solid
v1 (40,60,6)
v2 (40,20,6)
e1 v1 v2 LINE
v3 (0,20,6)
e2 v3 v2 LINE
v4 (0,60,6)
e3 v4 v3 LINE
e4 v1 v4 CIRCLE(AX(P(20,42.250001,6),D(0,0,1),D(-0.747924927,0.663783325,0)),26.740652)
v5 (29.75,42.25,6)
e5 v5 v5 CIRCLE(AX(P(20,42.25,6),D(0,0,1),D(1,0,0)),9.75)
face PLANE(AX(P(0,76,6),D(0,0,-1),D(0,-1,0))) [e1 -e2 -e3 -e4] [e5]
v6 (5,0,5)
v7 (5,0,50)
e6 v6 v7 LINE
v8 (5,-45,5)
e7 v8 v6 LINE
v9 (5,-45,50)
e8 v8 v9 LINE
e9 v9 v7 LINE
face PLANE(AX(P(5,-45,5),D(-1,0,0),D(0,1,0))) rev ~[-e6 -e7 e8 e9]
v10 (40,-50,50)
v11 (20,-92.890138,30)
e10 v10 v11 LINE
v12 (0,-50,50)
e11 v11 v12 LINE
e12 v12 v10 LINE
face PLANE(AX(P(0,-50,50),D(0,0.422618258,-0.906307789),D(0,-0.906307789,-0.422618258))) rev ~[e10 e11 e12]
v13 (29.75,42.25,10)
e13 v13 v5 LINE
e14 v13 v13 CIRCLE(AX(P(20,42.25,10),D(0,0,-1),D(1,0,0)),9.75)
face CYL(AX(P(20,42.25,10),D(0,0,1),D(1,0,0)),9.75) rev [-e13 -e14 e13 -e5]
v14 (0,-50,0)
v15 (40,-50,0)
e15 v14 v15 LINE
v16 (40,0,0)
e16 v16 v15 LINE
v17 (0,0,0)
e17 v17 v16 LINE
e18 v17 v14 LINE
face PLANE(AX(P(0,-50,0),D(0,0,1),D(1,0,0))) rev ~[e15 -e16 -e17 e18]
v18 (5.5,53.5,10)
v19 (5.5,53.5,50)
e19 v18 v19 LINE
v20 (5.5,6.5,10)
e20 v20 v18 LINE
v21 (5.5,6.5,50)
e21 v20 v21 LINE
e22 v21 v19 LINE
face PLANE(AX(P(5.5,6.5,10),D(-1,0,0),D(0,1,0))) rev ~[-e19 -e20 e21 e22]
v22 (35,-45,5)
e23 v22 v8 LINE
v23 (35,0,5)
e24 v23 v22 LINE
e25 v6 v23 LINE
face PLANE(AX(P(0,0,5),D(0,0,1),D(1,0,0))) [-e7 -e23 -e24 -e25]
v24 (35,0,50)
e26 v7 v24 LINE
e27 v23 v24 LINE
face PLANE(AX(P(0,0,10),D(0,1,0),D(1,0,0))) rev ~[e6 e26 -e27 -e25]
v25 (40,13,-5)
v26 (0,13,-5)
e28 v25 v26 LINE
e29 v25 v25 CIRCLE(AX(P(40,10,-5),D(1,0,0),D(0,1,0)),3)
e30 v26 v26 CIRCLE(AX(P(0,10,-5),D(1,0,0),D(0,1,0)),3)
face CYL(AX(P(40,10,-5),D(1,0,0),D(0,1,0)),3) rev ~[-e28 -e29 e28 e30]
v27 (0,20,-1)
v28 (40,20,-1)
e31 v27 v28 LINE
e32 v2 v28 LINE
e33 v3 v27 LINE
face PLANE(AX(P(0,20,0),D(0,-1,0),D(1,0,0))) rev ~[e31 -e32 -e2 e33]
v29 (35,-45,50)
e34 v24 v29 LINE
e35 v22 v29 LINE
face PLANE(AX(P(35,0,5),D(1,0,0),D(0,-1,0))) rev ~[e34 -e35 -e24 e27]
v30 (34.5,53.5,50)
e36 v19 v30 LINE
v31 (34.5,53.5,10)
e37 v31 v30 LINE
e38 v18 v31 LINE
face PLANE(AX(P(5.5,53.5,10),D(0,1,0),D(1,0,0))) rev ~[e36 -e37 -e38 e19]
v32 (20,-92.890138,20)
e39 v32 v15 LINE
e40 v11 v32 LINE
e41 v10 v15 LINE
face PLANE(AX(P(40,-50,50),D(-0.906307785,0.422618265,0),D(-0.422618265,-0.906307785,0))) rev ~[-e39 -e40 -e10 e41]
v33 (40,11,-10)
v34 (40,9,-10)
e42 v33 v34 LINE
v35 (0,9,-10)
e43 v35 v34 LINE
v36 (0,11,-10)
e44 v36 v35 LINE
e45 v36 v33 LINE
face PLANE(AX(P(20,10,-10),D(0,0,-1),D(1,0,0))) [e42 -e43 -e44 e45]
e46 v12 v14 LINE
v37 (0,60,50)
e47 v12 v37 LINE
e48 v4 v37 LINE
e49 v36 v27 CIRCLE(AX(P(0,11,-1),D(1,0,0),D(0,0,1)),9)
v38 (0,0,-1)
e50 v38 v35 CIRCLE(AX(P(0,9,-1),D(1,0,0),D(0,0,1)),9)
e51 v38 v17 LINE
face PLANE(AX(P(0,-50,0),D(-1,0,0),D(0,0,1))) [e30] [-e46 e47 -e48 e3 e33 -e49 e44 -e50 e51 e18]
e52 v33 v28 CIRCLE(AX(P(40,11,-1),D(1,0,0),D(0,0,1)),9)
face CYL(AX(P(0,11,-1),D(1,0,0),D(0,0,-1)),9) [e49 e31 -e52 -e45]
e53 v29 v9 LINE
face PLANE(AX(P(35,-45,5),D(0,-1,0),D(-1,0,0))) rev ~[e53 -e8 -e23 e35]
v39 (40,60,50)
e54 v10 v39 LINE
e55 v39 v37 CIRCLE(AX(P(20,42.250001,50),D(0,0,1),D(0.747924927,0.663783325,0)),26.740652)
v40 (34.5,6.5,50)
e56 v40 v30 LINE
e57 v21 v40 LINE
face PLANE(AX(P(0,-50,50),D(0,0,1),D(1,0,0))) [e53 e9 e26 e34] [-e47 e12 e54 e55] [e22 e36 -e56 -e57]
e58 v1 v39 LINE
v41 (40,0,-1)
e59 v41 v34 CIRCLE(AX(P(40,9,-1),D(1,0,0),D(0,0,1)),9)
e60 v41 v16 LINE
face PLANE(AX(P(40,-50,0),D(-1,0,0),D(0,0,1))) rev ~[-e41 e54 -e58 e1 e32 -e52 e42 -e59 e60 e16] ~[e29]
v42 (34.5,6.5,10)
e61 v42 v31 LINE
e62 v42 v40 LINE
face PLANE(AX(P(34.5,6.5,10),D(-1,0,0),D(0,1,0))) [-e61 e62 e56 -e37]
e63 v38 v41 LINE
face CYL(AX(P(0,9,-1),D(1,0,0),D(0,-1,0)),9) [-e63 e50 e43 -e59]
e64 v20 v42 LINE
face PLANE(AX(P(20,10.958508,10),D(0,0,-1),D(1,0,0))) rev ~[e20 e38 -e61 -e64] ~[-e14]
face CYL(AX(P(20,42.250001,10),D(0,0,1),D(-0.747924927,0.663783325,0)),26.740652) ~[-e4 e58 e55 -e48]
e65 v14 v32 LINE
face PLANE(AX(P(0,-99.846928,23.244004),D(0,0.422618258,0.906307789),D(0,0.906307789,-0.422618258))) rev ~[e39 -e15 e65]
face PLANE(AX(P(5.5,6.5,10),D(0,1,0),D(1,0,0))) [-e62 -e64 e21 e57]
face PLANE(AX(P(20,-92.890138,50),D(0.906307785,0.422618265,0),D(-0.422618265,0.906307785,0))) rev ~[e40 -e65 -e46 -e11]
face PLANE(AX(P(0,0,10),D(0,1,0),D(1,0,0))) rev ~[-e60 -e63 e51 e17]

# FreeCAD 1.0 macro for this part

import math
import FreeCAD as App
import Part
import Sketcher
Q = App.Units.Quantity


def edges_at(feature, points):
    """Names of the edges that pass closest to the given points."""
    edges = feature.Shape.Edges
    near = lambda p: min(range(len(edges)), key=lambda i: edges[i].distToShape(Part.Vertex(*p))[0])
    return sorted({f"Edge{near(p) + 1}" for p in points})

doc = App.newDocument("Part")
params = doc.addObject("Spreadsheet::Sheet", "Params")
for row, (alias, value) in enumerate([
    ("sketch1_width", "40 mm"),
    ("sketch1_width2", "29 mm"),
    ("sketch1_height", "60 mm"),
    ("sketch1_height2", "47 mm"),
    ("pad1_length", "40 mm"),
    ("sketch2_radius", "20 mm"),
    ("sketch2_diameter", "19.5 mm"),
    ("sketch2_height", "90 mm"),
    ("pad2_length", "10 mm"),
    ("sketch3_width", "56 mm"),
    ("sketch3_height", "6 mm"),
    ("pocket1_length", "100 mm"),
    ("sketch4_radius", "20 mm"),
    ("sketch4_height", "30 mm"),
    ("pocket2_length", "5 mm"),
    ("sketch5_diameter", "1.6 mm"),
    ("pocket3_length", "5 mm"),
    ("sketch6_width", "40 mm"),
    ("sketch6_height", "20 mm"),
    ("pad3_length", "10 mm"),
    ("fillet_radius", "9 mm"),
    ("fillet2_radius", "9 mm"),
    ("sketch7_diameter", "6 mm"),
    ("pocket4_length", "50 mm"),
    ("sketch8_width", "45 mm"),
    ("sketch8_height", "54 mm"),
    ("pocket5_length", "5 mm"),
    ("sketch9_width", "40 mm"),
    ("sketch9_height", "5 mm"),
    ("pad4_length", "50 mm"),
    ("sketch10_width", "40 mm"),
    ("sketch10_width2", "5 mm"),
    ("sketch10_height", "50 mm"),
    ("sketch10_height2", "45 mm"),
    ("pad5_length", "45 mm"),
    ("sketch11_width", "40 mm"),
    ("sketch11_height", "50 mm"),
    ("pad6_length", "50 mm"),
    ("sketch12_width", "40 mm"),
    ("sketch12_height", "50 mm"),
    ("sketch13_width", "45 mm"),
    ("sketch13_height", "50 mm"),
    ("sketch13_length", "55 mm"),
], start=1):
    params.set(f"A{row}", alias)
    params.set(f"B{row}", "=" + value)
    params.setAlias(f"B{row}", alias)

body = doc.addObject("PartDesign::Body", "Body")

# Sketch on XY plane
sketch1 = doc.addObject("Sketcher::SketchObject", "Sketch")
body.addObject(sketch1)
sketch1.AttachmentSupport = (doc.XY_Plane, [""])
sketch1.MapMode = "FlatFace"
sketch1.AttachmentOffset = App.Placement(App.Vector(0, 0, 10), App.Rotation())
sketch1.addGeometry(Part.LineSegment(App.Vector(0, 0, 0), App.Vector(40, 0, 0)), False)
sketch1.addGeometry(Part.LineSegment(App.Vector(40, 0, 0), App.Vector(40, 60, 0)), False)
sketch1.addGeometry(Part.ArcOfCircle(Part.Circle(App.Vector(20, 42.250001, 0), App.Vector(0, 0, 1), 26.740652), math.radians(41.589053), math.radians(138.410947)), False)
sketch1.addGeometry(Part.LineSegment(App.Vector(0, 60, 0), App.Vector(0, 0, 0)), False)
sketch1.addGeometry(Part.LineSegment(App.Vector(34.5, 6.5, 0), App.Vector(5.5, 6.5, 0)), False)
sketch1.addGeometry(Part.LineSegment(App.Vector(5.5, 6.5, 0), App.Vector(5.5, 53.5, 0)), False)
sketch1.addGeometry(Part.LineSegment(App.Vector(5.5, 53.5, 0), App.Vector(34.5, 53.5, 0)), False)
sketch1.addGeometry(Part.LineSegment(App.Vector(34.5, 53.5, 0), App.Vector(34.5, 6.5, 0)), False)
sketch1.addConstraint(Sketcher.Constraint("Coincident", 0, 2, 1, 1))
sketch1.addConstraint(Sketcher.Constraint("Coincident", 1, 2, 2, 1))
sketch1.addConstraint(Sketcher.Constraint("Coincident", 2, 2, 3, 1))
sketch1.addConstraint(Sketcher.Constraint("Coincident", 3, 2, 0, 1))
sketch1.addConstraint(Sketcher.Constraint("Coincident", 4, 2, 5, 1))
sketch1.addConstraint(Sketcher.Constraint("Coincident", 5, 2, 6, 1))
sketch1.addConstraint(Sketcher.Constraint("Coincident", 6, 2, 7, 1))
sketch1.addConstraint(Sketcher.Constraint("Coincident", 7, 2, 4, 1))
sketch1.addConstraint(Sketcher.Constraint("Horizontal", 0))
sketch1.addConstraint(Sketcher.Constraint("Vertical", 1))
sketch1.addConstraint(Sketcher.Constraint("Vertical", 3))
sketch1.addConstraint(Sketcher.Constraint("Horizontal", 4))
sketch1.addConstraint(Sketcher.Constraint("Vertical", 5))
sketch1.addConstraint(Sketcher.Constraint("Horizontal", 6))
sketch1.addConstraint(Sketcher.Constraint("Vertical", 7))
sketch1.addConstraint(Sketcher.Constraint("Coincident", 3, 2, -1, 1))
sketch1.addConstraint(Sketcher.Constraint("Horizontal", 1, 2, 2, 2))
sketch1.addConstraint(Sketcher.Constraint("DistanceX", 0, 1, 0, 2, Q("40 mm")))
sketch1.addConstraint(Sketcher.Constraint("DistanceX", 4, 2, 4, 1, Q("29 mm")))
sketch1.addConstraint(Sketcher.Constraint("DistanceY", 1, 1, 1, 2, Q("60 mm")))
sketch1.addConstraint(Sketcher.Constraint("DistanceY", 5, 1, 5, 2, Q("47 mm")))
sketch1.addConstraint(Sketcher.Constraint("DistanceX", -1, 1, 4, 2, Q("5.5 mm")))
sketch1.addConstraint(Sketcher.Constraint("DistanceY", -1, 1, 4, 2, Q("6.5 mm")))
sketch1.addConstraint(Sketcher.Constraint("DistanceY", -1, 1, 2, 3, Q("42.250001 mm")))
sketch1.setExpression("Constraints[17]", "Params.sketch1_width")
sketch1.setExpression("Constraints[18]", "Params.sketch1_width2")
sketch1.setExpression("Constraints[19]", "Params.sketch1_height")
sketch1.setExpression("Constraints[20]", "Params.sketch1_height2")
pad1 = doc.addObject("PartDesign::Pad", "Pad")
body.addObject(pad1)
pad1.Profile = sketch1
pad1.setExpression("Length", "Params.pad1_length")

# Sketch on XY plane
sketch2 = doc.addObject("Sketcher::SketchObject", "Sketch001")
body.addObject(sketch2)
sketch2.AttachmentSupport = (doc.XY_Plane, [""])
sketch2.MapMode = "FlatFace"
sketch2.AttachmentOffset = App.Placement(App.Vector(0, 0, 10), App.Rotation())
sketch2.addGeometry(Part.LineSegment(App.Vector(40, 60, 0), App.Vector(40, -30, 0)), False)
sketch2.addGeometry(Part.ArcOfCircle(Part.Circle(App.Vector(20, -30, 0), App.Vector(0, 0, 1), 20), math.radians(180), math.radians(360)), False)
sketch2.addGeometry(Part.LineSegment(App.Vector(0, -30, 0), App.Vector(0, 60, 0)), False)
sketch2.addGeometry(Part.ArcOfCircle(Part.Circle(App.Vector(20, 42.250001, 0), App.Vector(0, 0, 1), 26.740652), math.radians(41.589053), math.radians(138.410947)), False)
sketch2.addGeometry(Part.Circle(App.Vector(20, 42.25, 0), App.Vector(0, 0, 1), 9.75), False)
sketch2.addConstraint(Sketcher.Constraint("Tangent", 0, 2, 1, 2))
sketch2.addConstraint(Sketcher.Constraint("Tangent", 1, 1, 2, 1))
sketch2.addConstraint(Sketcher.Constraint("Coincident", 2, 2, 3, 2))
sketch2.addConstraint(Sketcher.Constraint("Coincident", 3, 1, 0, 1))
sketch2.addConstraint(Sketcher.Constraint("Vertical", 0))
sketch2.addConstraint(Sketcher.Constraint("Vertical", 2))
sketch2.addConstraint(Sketcher.Constraint("Coincident", 4, 3, 3, 3))
sketch2.addConstraint(Sketcher.Constraint("PointOnObject", 1, 1, -2))
sketch2.addConstraint(Sketcher.Constraint("Horizontal", 2, 2, 3, 1))
sketch2.addConstraint(Sketcher.Constraint("Radius", 1, Q("20 mm")))
sketch2.addConstraint(Sketcher.Constraint("Diameter", 4, Q("19.5 mm")))
sketch2.addConstraint(Sketcher.Constraint("DistanceY", 0, 2, 0, 1, Q("90 mm")))
sketch2.addConstraint(Sketcher.Constraint("DistanceY", 1, 3, -1, 1, Q("30 mm")))
sketch2.addConstraint(Sketcher.Constraint("DistanceY", -1, 1, 3, 3, Q("42.250001 mm")))
sketch2.setExpression("Constraints[9]", "Params.sketch2_radius")
sketch2.setExpression("Constraints[10]", "Params.sketch2_diameter")
sketch2.setExpression("Constraints[11]", "Params.sketch2_height")
pad2 = doc.addObject("PartDesign::Pad", "Pad001")
body.addObject(pad2)
pad2.Profile = sketch2
pad2.setExpression("Length", "Params.pad2_length")
pad2.Reversed = True

# Sketch on YZ plane
sketch3 = doc.addObject("Sketcher::SketchObject", "Sketch002")
body.addObject(sketch3)
sketch3.AttachmentSupport = (doc.YZ_Plane, [""])
sketch3.MapMode = "FlatFace"
sketch3.addGeometry(Part.LineSegment(App.Vector(76, 6, 0), App.Vector(76, 0, 0)), False)
sketch3.addGeometry(Part.LineSegment(App.Vector(76, 0, 0), App.Vector(20, 0, 0)), False)
sketch3.addGeometry(Part.LineSegment(App.Vector(20, 0, 0), App.Vector(20, 6, 0)), False)
sketch3.addGeometry(Part.LineSegment(App.Vector(20, 6, 0), App.Vector(76, 6, 0)), False)
sketch3.addConstraint(Sketcher.Constraint("Coincident", 0, 2, 1, 1))
sketch3.addConstraint(Sketcher.Constraint("Coincident", 1, 2, 2, 1))
sketch3.addConstraint(Sketcher.Constraint("Coincident", 2, 2, 3, 1))
sketch3.addConstraint(Sketcher.Constraint("Coincident", 3, 2, 0, 1))
sketch3.addConstraint(Sketcher.Constraint("Vertical", 0))
sketch3.addConstraint(Sketcher.Constraint("Horizontal", 1))
sketch3.addConstraint(Sketcher.Constraint("Vertical", 2))
sketch3.addConstraint(Sketcher.Constraint("Horizontal", 3))
sketch3.addConstraint(Sketcher.Constraint("PointOnObject", 0, 2, -1))
sketch3.addConstraint(Sketcher.Constraint("DistanceX", 1, 2, 1, 1, Q("56 mm")))
sketch3.addConstraint(Sketcher.Constraint("DistanceY", 0, 2, 0, 1, Q("6 mm")))
sketch3.addConstraint(Sketcher.Constraint("DistanceX", -1, 1, 0, 2, Q("76 mm")))
sketch3.setExpression("Constraints[9]", "Params.sketch3_width")
sketch3.setExpression("Constraints[10]", "Params.sketch3_height")
pocket1 = doc.addObject("PartDesign::Pocket", "Pocket")
body.addObject(pocket1)
pocket1.Profile = sketch3
pocket1.setExpression("Length", "Params.pocket1_length")
pocket1.Reversed = True

# Sketch on XY plane
sketch4 = doc.addObject("Sketcher::SketchObject", "Sketch003")
body.addObject(sketch4)
sketch4.AttachmentSupport = (doc.XY_Plane, [""])
sketch4.MapMode = "FlatFace"
sketch4.AttachmentOffset = App.Placement(App.Vector(0, 0, 10), App.Rotation())
sketch4.addGeometry(Part.LineSegment(App.Vector(40, 0, 0), App.Vector(0, 0, 0)), False)
sketch4.addGeometry(Part.LineSegment(App.Vector(0, 0, 0), App.Vector(0, -30, 0)), False)
sketch4.addGeometry(Part.ArcOfCircle(Part.Circle(App.Vector(20, -30, 0), App.Vector(0, 0, 1), 20), math.radians(180), math.radians(360)), False)
sketch4.addGeometry(Part.LineSegment(App.Vector(40, -30, 0), App.Vector(40, 0, 0)), False)
sketch4.addConstraint(Sketcher.Constraint("Coincident", 0, 2, 1, 1))
sketch4.addConstraint(Sketcher.Constraint("Tangent", 1, 2, 2, 1))
sketch4.addConstraint(Sketcher.Constraint("Tangent", 2, 2, 3, 1))
sketch4.addConstraint(Sketcher.Constraint("Coincident", 3, 2, 0, 1))
sketch4.addConstraint(Sketcher.Constraint("Horizontal", 0))
sketch4.addConstraint(Sketcher.Constraint("Vertical", 1))
sketch4.addConstraint(Sketcher.Constraint("Vertical", 3))
sketch4.addConstraint(Sketcher.Constraint("Coincident", 0, 2, -1, 1))
sketch4.addConstraint(Sketcher.Constraint("Radius", 2, Q("20 mm")))
sketch4.addConstraint(Sketcher.Constraint("DistanceY", 1, 2, 1, 1, Q("30 mm")))
sketch4.setExpression("Constraints[8]", "Params.sketch4_radius")
sketch4.setExpression("Constraints[9]", "Params.sketch4_height")
pocket2 = doc.addObject("PartDesign::Pocket", "Pocket001")
body.addObject(pocket2)
pocket2.Profile = sketch4
pocket2.setExpression("Length", "Params.pocket2_length")

# Sketch on XY plane
sketch5 = doc.addObject("Sketcher::SketchObject", "Sketch004")
body.addObject(sketch5)
sketch5.AttachmentSupport = (doc.XY_Plane, [""])
sketch5.MapMode = "FlatFace"
sketch5.addGeometry(Part.Circle(App.Vector(11.98, -30, 0), App.Vector(0, 0, 1), 0.8), False)
sketch5.addGeometry(Part.Circle(App.Vector(14.34, -35.7, 0), App.Vector(0, 0, 1), 0.8), False)
sketch5.addGeometry(Part.Circle(App.Vector(20, -37.98, 0), App.Vector(0, 0, 1), 0.8), False)
sketch5.addGeometry(Part.Circle(App.Vector(25.66, -35.7, 0), App.Vector(0, 0, 1), 0.8), False)
sketch5.addGeometry(Part.Circle(App.Vector(28.02, -30, 0), App.Vector(0, 0, 1), 0.8), False)
sketch5.addGeometry(Part.Circle(App.Vector(25.66, -24.35, 0), App.Vector(0, 0, 1), 0.8), False)
sketch5.addGeometry(Part.Circle(App.Vector(20, -22.02, 0), App.Vector(0, 0, 1), 0.8), False)
sketch5.addGeometry(Part.Circle(App.Vector(14.34, -24.34, 0), App.Vector(0, 0, 1), 0.8), False)
sketch5.addConstraint(Sketcher.Constraint("Equal", 0, 1))
sketch5.addConstraint(Sketcher.Constraint("Equal", 1, 2))
sketch5.addConstraint(Sketcher.Constraint("Equal", 2, 3))
sketch5.addConstraint(Sketcher.Constraint("Equal", 3, 4))
sketch5.addConstraint(Sketcher.Constraint("Equal", 4, 5))
sketch5.addConstraint(Sketcher.Constraint("Equal", 5, 6))
sketch5.addConstraint(Sketcher.Constraint("Equal", 6, 7))
sketch5.addConstraint(Sketcher.Constraint("Horizontal", 1, 3, 3, 3))
sketch5.addConstraint(Sketcher.Constraint("Horizontal", 0, 3, 4, 3))
sketch5.addConstraint(Sketcher.Constraint("Vertical", 3, 3, 5, 3))
sketch5.addConstraint(Sketcher.Constraint("Vertical", 2, 3, 6, 3))
sketch5.addConstraint(Sketcher.Constraint("Vertical", 1, 3, 7, 3))
sketch5.addConstraint(Sketcher.Constraint("Diameter", 0, Q("1.6 mm")))
sketch5.addConstraint(Sketcher.Constraint("DistanceY", 0, 3, -1, 1, Q("30 mm")))
sketch5.addConstraint(Sketcher.Constraint("DistanceX", -1, 1, 2, 3, Q("20 mm")))
sketch5.addConstraint(Sketcher.Constraint("DistanceY", 1, 3, -1, 1, Q("35.7 mm")))
sketch5.addConstraint(Sketcher.Constraint("DistanceX", -1, 1, 0, 3, Q("11.98 mm")))
sketch5.addConstraint(Sketcher.Constraint("DistanceX", -1, 1, 1, 3, Q("14.34 mm")))
sketch5.addConstraint(Sketcher.Constraint("DistanceY", 2, 3, -1, 1, Q("37.98 mm")))
sketch5.addConstraint(Sketcher.Constraint("DistanceX", -1, 1, 3, 3, Q("25.66 mm")))
sketch5.addConstraint(Sketcher.Constraint("DistanceX", -1, 1, 4, 3, Q("28.02 mm")))
sketch5.addConstraint(Sketcher.Constraint("DistanceY", 5, 3, -1, 1, Q("24.35 mm")))
sketch5.addConstraint(Sketcher.Constraint("DistanceY", 6, 3, -1, 1, Q("22.02 mm")))
sketch5.addConstraint(Sketcher.Constraint("DistanceY", 7, 3, -1, 1, Q("24.34 mm")))
sketch5.setExpression("Constraints[12]", "Params.sketch5_diameter")
pocket3 = doc.addObject("PartDesign::Pocket", "Pocket002")
body.addObject(pocket3)
pocket3.Profile = sketch5
pocket3.setExpression("Length", "Params.pocket3_length")
pocket3.Reversed = True

# Sketch on XY plane
sketch6 = doc.addObject("Sketcher::SketchObject", "Sketch005")
body.addObject(sketch6)
sketch6.AttachmentSupport = (doc.XY_Plane, [""])
sketch6.MapMode = "FlatFace"
sketch6.addGeometry(Part.LineSegment(App.Vector(0, 0, 0), App.Vector(0, 20, 0)), False)
sketch6.addGeometry(Part.LineSegment(App.Vector(0, 20, 0), App.Vector(40, 20, 0)), False)
sketch6.addGeometry(Part.LineSegment(App.Vector(40, 20, 0), App.Vector(40, 0, 0)), False)
sketch6.addGeometry(Part.LineSegment(App.Vector(40, 0, 0), App.Vector(0, 0, 0)), False)
sketch6.addConstraint(Sketcher.Constraint("Coincident", 0, 2, 1, 1))
sketch6.addConstraint(Sketcher.Constraint("Coincident", 1, 2, 2, 1))
sketch6.addConstraint(Sketcher.Constraint("Coincident", 2, 2, 3, 1))
sketch6.addConstraint(Sketcher.Constraint("Coincident", 3, 2, 0, 1))
sketch6.addConstraint(Sketcher.Constraint("Vertical", 0))
sketch6.addConstraint(Sketcher.Constraint("Horizontal", 1))
sketch6.addConstraint(Sketcher.Constraint("Vertical", 2))
sketch6.addConstraint(Sketcher.Constraint("Horizontal", 3))
sketch6.addConstraint(Sketcher.Constraint("Coincident", 3, 2, -1, 1))
sketch6.addConstraint(Sketcher.Constraint("DistanceX", 1, 1, 1, 2, Q("40 mm")))
sketch6.addConstraint(Sketcher.Constraint("DistanceY", 0, 1, 0, 2, Q("20 mm")))
sketch6.setExpression("Constraints[9]", "Params.sketch6_width")
sketch6.setExpression("Constraints[10]", "Params.sketch6_height")
pad3 = doc.addObject("PartDesign::Pad", "Pad002")
body.addObject(pad3)
pad3.Profile = sketch6
pad3.setExpression("Length", "Params.pad3_length")
pad3.Reversed = True
doc.recompute()

fillet = doc.addObject("PartDesign::Fillet", "Fillet")
body.addObject(fillet)
fillet.Base = (pad3, edges_at(pad3, [(20, 0, -10)]))
fillet.setExpression("Radius", "Params.fillet_radius")
doc.recompute()

fillet2 = doc.addObject("PartDesign::Fillet", "Fillet001")
body.addObject(fillet2)
fillet2.Base = (fillet, edges_at(fillet, [(20, 20, -10)]))
fillet2.setExpression("Radius", "Params.fillet2_radius")

# Sketch on YZ plane
sketch7 = doc.addObject("Sketcher::SketchObject", "Sketch006")
body.addObject(sketch7)
sketch7.AttachmentSupport = (doc.YZ_Plane, [""])
sketch7.MapMode = "FlatFace"
sketch7.AttachmentOffset = App.Placement(App.Vector(0, 0, 40), App.Rotation())
sketch7.addGeometry(Part.Circle(App.Vector(10, -5, 0), App.Vector(0, 0, 1), 3), False)
sketch7.addConstraint(Sketcher.Constraint("Diameter", 0, Q("6 mm")))
sketch7.addConstraint(Sketcher.Constraint("DistanceX", -1, 1, 0, 3, Q("10 mm")))
sketch7.addConstraint(Sketcher.Constraint("DistanceY", 0, 3, -1, 1, Q("5 mm")))
sketch7.setExpression("Constraints[0]", "Params.sketch7_diameter")
pocket4 = doc.addObject("PartDesign::Pocket", "Pocket003")
body.addObject(pocket4)
pocket4.Profile = sketch7
pocket4.setExpression("Length", "Params.pocket4_length")

# Sketch on XY plane
sketch8 = doc.addObject("Sketcher::SketchObject", "Sketch007")
body.addObject(sketch8)
sketch8.AttachmentSupport = (doc.XY_Plane, [""])
sketch8.MapMode = "FlatFace"
sketch8.AttachmentOffset = App.Placement(App.Vector(0, 0, 5), App.Rotation())
sketch8.addGeometry(Part.LineSegment(App.Vector(0, 0, 0), App.Vector(0, -54, 0)), False)
sketch8.addGeometry(Part.LineSegment(App.Vector(0, -54, 0), App.Vector(45, -54, 0)), False)
sketch8.addGeometry(Part.LineSegment(App.Vector(45, -54, 0), App.Vector(45, 0, 0)), False)
sketch8.addGeometry(Part.LineSegment(App.Vector(45, 0, 0), App.Vector(0, 0, 0)), False)
sketch8.addConstraint(Sketcher.Constraint("Coincident", 0, 2, 1, 1))
sketch8.addConstraint(Sketcher.Constraint("Coincident", 1, 2, 2, 1))
sketch8.addConstraint(Sketcher.Constraint("Coincident", 2, 2, 3, 1))
sketch8.addConstraint(Sketcher.Constraint("Coincident", 3, 2, 0, 1))
sketch8.addConstraint(Sketcher.Constraint("Vertical", 0))
sketch8.addConstraint(Sketcher.Constraint("Horizontal", 1))
sketch8.addConstraint(Sketcher.Constraint("Vertical", 2))
sketch8.addConstraint(Sketcher.Constraint("Horizontal", 3))
sketch8.addConstraint(Sketcher.Constraint("Coincident", 3, 2, -1, 1))
sketch8.addConstraint(Sketcher.Constraint("DistanceX", 1, 1, 1, 2, Q("45 mm")))
sketch8.addConstraint(Sketcher.Constraint("DistanceY", 0, 2, 0, 1, Q("54 mm")))
sketch8.setExpression("Constraints[9]", "Params.sketch8_width")
sketch8.setExpression("Constraints[10]", "Params.sketch8_height")
pocket5 = doc.addObject("PartDesign::Pocket", "Pocket004")
body.addObject(pocket5)
pocket5.Profile = sketch8
pocket5.setExpression("Length", "Params.pocket5_length")

# Sketch on XZ plane
sketch9 = doc.addObject("Sketcher::SketchObject", "Sketch008")
body.addObject(sketch9)
sketch9.AttachmentSupport = (doc.XZ_Plane, [""])
sketch9.MapMode = "FlatFace"
sketch9.addGeometry(Part.LineSegment(App.Vector(0, 5, 0), App.Vector(0, 0, 0)), False)
sketch9.addGeometry(Part.LineSegment(App.Vector(0, 0, 0), App.Vector(40, 0, 0)), False)
sketch9.addGeometry(Part.LineSegment(App.Vector(40, 0, 0), App.Vector(40, 5, 0)), False)
sketch9.addGeometry(Part.LineSegment(App.Vector(40, 5, 0), App.Vector(0, 5, 0)), False)
sketch9.addConstraint(Sketcher.Constraint("Coincident", 0, 2, 1, 1))
sketch9.addConstraint(Sketcher.Constraint("Coincident", 1, 2, 2, 1))
sketch9.addConstraint(Sketcher.Constraint("Coincident", 2, 2, 3, 1))
sketch9.addConstraint(Sketcher.Constraint("Coincident", 3, 2, 0, 1))
sketch9.addConstraint(Sketcher.Constraint("Vertical", 0))
sketch9.addConstraint(Sketcher.Constraint("Horizontal", 1))
sketch9.addConstraint(Sketcher.Constraint("Vertical", 2))
sketch9.addConstraint(Sketcher.Constraint("Horizontal", 3))
sketch9.addConstraint(Sketcher.Constraint("Coincident", 0, 2, -1, 1))
sketch9.addConstraint(Sketcher.Constraint("DistanceX", 1, 1, 1, 2, Q("40 mm")))
sketch9.addConstraint(Sketcher.Constraint("DistanceY", 0, 2, 0, 1, Q("5 mm")))
sketch9.setExpression("Constraints[9]", "Params.sketch9_width")
sketch9.setExpression("Constraints[10]", "Params.sketch9_height")
pad4 = doc.addObject("PartDesign::Pad", "Pad003")
body.addObject(pad4)
pad4.Profile = sketch9
pad4.setExpression("Length", "Params.pad4_length")

# Sketch on XY plane
sketch10 = doc.addObject("Sketcher::SketchObject", "Sketch009")
body.addObject(sketch10)
sketch10.AttachmentSupport = (doc.XY_Plane, [""])
sketch10.MapMode = "FlatFace"
sketch10.AttachmentOffset = App.Placement(App.Vector(0, 0, 5), App.Rotation())
sketch10.addGeometry(Part.LineSegment(App.Vector(0, 0, 0), App.Vector(0, -50, 0)), False)
sketch10.addGeometry(Part.LineSegment(App.Vector(0, -50, 0), App.Vector(40, -50, 0)), False)
sketch10.addGeometry(Part.LineSegment(App.Vector(40, -50, 0), App.Vector(40, 0, 0)), False)
sketch10.addGeometry(Part.LineSegment(App.Vector(40, 0, 0), App.Vector(35, 0, 0)), False)
sketch10.addGeometry(Part.LineSegment(App.Vector(35, 0, 0), App.Vector(35, -45, 0)), False)
sketch10.addGeometry(Part.LineSegment(App.Vector(35, -45, 0), App.Vector(5, -45, 0)), False)
sketch10.addGeometry(Part.LineSegment(App.Vector(5, -45, 0), App.Vector(5, 0, 0)), False)
sketch10.addGeometry(Part.LineSegment(App.Vector(5, 0, 0), App.Vector(0, 0, 0)), False)
sketch10.addConstraint(Sketcher.Constraint("Coincident", 0, 2, 1, 1))
sketch10.addConstraint(Sketcher.Constraint("Coincident", 1, 2, 2, 1))
sketch10.addConstraint(Sketcher.Constraint("Coincident", 2, 2, 3, 1))
sketch10.addConstraint(Sketcher.Constraint("Coincident", 3, 2, 4, 1))
sketch10.addConstraint(Sketcher.Constraint("Coincident", 4, 2, 5, 1))
sketch10.addConstraint(Sketcher.Constraint("Coincident", 5, 2, 6, 1))
sketch10.addConstraint(Sketcher.Constraint("Coincident", 6, 2, 7, 1))
sketch10.addConstraint(Sketcher.Constraint("Coincident", 7, 2, 0, 1))
sketch10.addConstraint(Sketcher.Constraint("Vertical", 0))
sketch10.addConstraint(Sketcher.Constraint("Horizontal", 1))
sketch10.addConstraint(Sketcher.Constraint("Vertical", 2))
sketch10.addConstraint(Sketcher.Constraint("Horizontal", 3))
sketch10.addConstraint(Sketcher.Constraint("Vertical", 4))
sketch10.addConstraint(Sketcher.Constraint("Horizontal", 5))
sketch10.addConstraint(Sketcher.Constraint("Vertical", 6))
sketch10.addConstraint(Sketcher.Constraint("Horizontal", 7))
sketch10.addConstraint(Sketcher.Constraint("Coincident", 7, 2, -1, 1))
sketch10.addConstraint(Sketcher.Constraint("PointOnObject", 2, 2, -1))
sketch10.addConstraint(Sketcher.Constraint("Equal", 3, 7))
sketch10.addConstraint(Sketcher.Constraint("DistanceX", 1, 1, 1, 2, Q("40 mm")))
sketch10.addConstraint(Sketcher.Constraint("DistanceX", 3, 2, 3, 1, Q("5 mm")))
sketch10.addConstraint(Sketcher.Constraint("DistanceY", 0, 2, 0, 1, Q("50 mm")))
sketch10.addConstraint(Sketcher.Constraint("DistanceY", 4, 2, 4, 1, Q("45 mm")))
sketch10.setExpression("Constraints[19]", "Params.sketch10_width")
sketch10.setExpression("Constraints[20]", "Params.sketch10_width2")
sketch10.setExpression("Constraints[21]", "Params.sketch10_height")
sketch10.setExpression("Constraints[22]", "Params.sketch10_height2")
pad5 = doc.addObject("PartDesign::Pad", "Pad004")
body.addObject(pad5)
pad5.Profile = sketch10
pad5.setExpression("Length", "Params.pad5_length")

# Sketch on XZ plane
sketch11 = doc.addObject("Sketcher::SketchObject", "Sketch010")
body.addObject(sketch11)
sketch11.AttachmentSupport = (doc.XZ_Plane, [""])
sketch11.MapMode = "FlatFace"
sketch11.AttachmentOffset = App.Placement(App.Vector(0, 0, 50), App.Rotation())
sketch11.addGeometry(Part.LineSegment(App.Vector(0, 50, 0), App.Vector(0, 0, 0)), False)
sketch11.addGeometry(Part.LineSegment(App.Vector(0, 0, 0), App.Vector(40, 0, 0)), False)
sketch11.addGeometry(Part.LineSegment(App.Vector(40, 0, 0), App.Vector(40, 50, 0)), False)
sketch11.addGeometry(Part.LineSegment(App.Vector(40, 50, 0), App.Vector(0, 50, 0)), False)
sketch11.addConstraint(Sketcher.Constraint("Coincident", 0, 2, 1, 1))
sketch11.addConstraint(Sketcher.Constraint("Coincident", 1, 2, 2, 1))
sketch11.addConstraint(Sketcher.Constraint("Coincident", 2, 2, 3, 1))
sketch11.addConstraint(Sketcher.Constraint("Coincident", 3, 2, 0, 1))
sketch11.addConstraint(Sketcher.Constraint("Vertical", 0))
sketch11.addConstraint(Sketcher.Constraint("Horizontal", 1))
sketch11.addConstraint(Sketcher.Constraint("Vertical", 2))
sketch11.addConstraint(Sketcher.Constraint("Horizontal", 3))
sketch11.addConstraint(Sketcher.Constraint("Coincident", 0, 2, -1, 1))
sketch11.addConstraint(Sketcher.Constraint("DistanceX", 1, 1, 1, 2, Q("40 mm")))
sketch11.addConstraint(Sketcher.Constraint("DistanceY", 0, 2, 0, 1, Q("50 mm")))
sketch11.setExpression("Constraints[9]", "Params.sketch11_width")
sketch11.setExpression("Constraints[10]", "Params.sketch11_height")
pad6 = doc.addObject("PartDesign::Pad", "Pad005")
body.addObject(pad6)
pad6.Profile = sketch11
pad6.setExpression("Length", "Params.pad6_length")

# Sketch on XY plane
sketch12 = doc.addObject("Sketcher::SketchObject", "Sketch011")
body.addObject(sketch12)
sketch12.AttachmentSupport = (doc.XY_Plane, [""])
sketch12.MapMode = "FlatFace"
sketch12.AttachmentOffset = App.Placement(App.Vector(0, 0, 50), App.Rotation())
sketch12.addGeometry(Part.LineSegment(App.Vector(40, -50, 0), App.Vector(20, -92.890138, 0)), False)
sketch12.addGeometry(Part.LineSegment(App.Vector(20, -92.890138, 0), App.Vector(0, -50, 0)), False)
sketch12.addGeometry(Part.LineSegment(App.Vector(0, -50, 0), App.Vector(0, -100, 0)), False)
sketch12.addGeometry(Part.LineSegment(App.Vector(0, -100, 0), App.Vector(40, -100, 0)), False)
sketch12.addGeometry(Part.LineSegment(App.Vector(40, -100, 0), App.Vector(40, -50, 0)), False)
sketch12.addConstraint(Sketcher.Constraint("Coincident", 0, 2, 1, 1))
sketch12.addConstraint(Sketcher.Constraint("Coincident", 1, 2, 2, 1))
sketch12.addConstraint(Sketcher.Constraint("Coincident", 2, 2, 3, 1))
sketch12.addConstraint(Sketcher.Constraint("Coincident", 3, 2, 4, 1))
sketch12.addConstraint(Sketcher.Constraint("Coincident", 4, 2, 0, 1))
sketch12.addConstraint(Sketcher.Constraint("Vertical", 2))
sketch12.addConstraint(Sketcher.Constraint("Horizontal", 3))
sketch12.addConstraint(Sketcher.Constraint("Vertical", 4))
sketch12.addConstraint(Sketcher.Constraint("PointOnObject", 1, 2, -2))
sketch12.addConstraint(Sketcher.Constraint("Horizontal", 1, 2, 4, 2))
sketch12.addConstraint(Sketcher.Constraint("Equal", 0, 1))
sketch12.addConstraint(Sketcher.Constraint("DistanceX", 3, 1, 3, 2, Q("40 mm")))
sketch12.addConstraint(Sketcher.Constraint("DistanceY", 2, 2, 2, 1, Q("50 mm")))
sketch12.addConstraint(Sketcher.Constraint("Angle", 0, Q("-115 deg")))
sketch12.addConstraint(Sketcher.Constraint("DistanceY", 1, 2, -1, 1, Q("50 mm")))
sketch12.setExpression("Constraints[11]", "Params.sketch12_width")
sketch12.setExpression("Constraints[12]", "Params.sketch12_height")
pocket6 = doc.addObject("PartDesign::Pocket", "Pocket005")
body.addObject(pocket6)
pocket6.Profile = sketch12
pocket6.Type = "ThroughAll"

# Sketch on YZ plane
sketch13 = doc.addObject("Sketcher::SketchObject", "Sketch012")
body.addObject(sketch13)
sketch13.AttachmentSupport = (doc.YZ_Plane, [""])
sketch13.MapMode = "FlatFace"
sketch13.addGeometry(Part.LineSegment(App.Vector(-50, 0, 0), App.Vector(-95, 0, 0)), False)
sketch13.addGeometry(Part.LineSegment(App.Vector(-95, 0, 0), App.Vector(-95, 50, 0)), False)
sketch13.addGeometry(Part.LineSegment(App.Vector(-95, 50, 0), App.Vector(-50, 50, 0)), False)
sketch13.addGeometry(Part.LineSegment(App.Vector(-50, 50, 0), App.Vector(-99.846928, 26.755996, 0)), False)
sketch13.addGeometry(Part.LineSegment(App.Vector(-99.846928, 26.755996, 0), App.Vector(-99.846928, 23.244004, 0)), False)
sketch13.addGeometry(Part.LineSegment(App.Vector(-99.846928, 23.244004, 0), App.Vector(-50, 0, 0)), False)
sketch13.addConstraint(Sketcher.Constraint("Coincident", 0, 2, 1, 1))
sketch13.addConstraint(Sketcher.Constraint("Coincident", 1, 2, 2, 1))
sketch13.addConstraint(Sketcher.Constraint("Coincident", 2, 2, 3, 1))
sketch13.addConstraint(Sketcher.Constraint("Coincident", 3, 2, 4, 1))
sketch13.addConstraint(Sketcher.Constraint("Coincident", 4, 2, 5, 1))
sketch13.addConstraint(Sketcher.Constraint("Coincident", 5, 2, 0, 1))
sketch13.addConstraint(Sketcher.Constraint("Horizontal", 0))
sketch13.addConstraint(Sketcher.Constraint("Vertical", 1))
sketch13.addConstraint(Sketcher.Constraint("Horizontal", 2))
sketch13.addConstraint(Sketcher.Constraint("Vertical", 4))
sketch13.addConstraint(Sketcher.Constraint("PointOnObject", 0, 2, -1))
sketch13.addConstraint(Sketcher.Constraint("Vertical", 2, 2, 5, 2))
sketch13.addConstraint(Sketcher.Constraint("Equal", 3, 5))
sketch13.addConstraint(Sketcher.Constraint("DistanceX", 0, 2, 0, 1, Q("45 mm")))
sketch13.addConstraint(Sketcher.Constraint("DistanceY", 1, 1, 1, 2, Q("50 mm")))
sketch13.addConstraint(Sketcher.Constraint("Angle", 3, Q("-155 deg")))
sketch13.addConstraint(Sketcher.Constraint("Distance", 3, Q("55 mm")))
sketch13.addConstraint(Sketcher.Constraint("DistanceX", 0, 2, -1, 1, Q("95 mm")))
sketch13.setExpression("Constraints[13]", "Params.sketch13_width")
sketch13.setExpression("Constraints[14]", "Params.sketch13_height")
sketch13.setExpression("Constraints[16]", "Params.sketch13_length")
pocket7 = doc.addObject("PartDesign::Pocket", "Pocket006")
body.addObject(pocket7)
pocket7.Profile = sketch13
pocket7.Type = "ThroughAll"
pocket7.Reversed = True

doc.recompute()
